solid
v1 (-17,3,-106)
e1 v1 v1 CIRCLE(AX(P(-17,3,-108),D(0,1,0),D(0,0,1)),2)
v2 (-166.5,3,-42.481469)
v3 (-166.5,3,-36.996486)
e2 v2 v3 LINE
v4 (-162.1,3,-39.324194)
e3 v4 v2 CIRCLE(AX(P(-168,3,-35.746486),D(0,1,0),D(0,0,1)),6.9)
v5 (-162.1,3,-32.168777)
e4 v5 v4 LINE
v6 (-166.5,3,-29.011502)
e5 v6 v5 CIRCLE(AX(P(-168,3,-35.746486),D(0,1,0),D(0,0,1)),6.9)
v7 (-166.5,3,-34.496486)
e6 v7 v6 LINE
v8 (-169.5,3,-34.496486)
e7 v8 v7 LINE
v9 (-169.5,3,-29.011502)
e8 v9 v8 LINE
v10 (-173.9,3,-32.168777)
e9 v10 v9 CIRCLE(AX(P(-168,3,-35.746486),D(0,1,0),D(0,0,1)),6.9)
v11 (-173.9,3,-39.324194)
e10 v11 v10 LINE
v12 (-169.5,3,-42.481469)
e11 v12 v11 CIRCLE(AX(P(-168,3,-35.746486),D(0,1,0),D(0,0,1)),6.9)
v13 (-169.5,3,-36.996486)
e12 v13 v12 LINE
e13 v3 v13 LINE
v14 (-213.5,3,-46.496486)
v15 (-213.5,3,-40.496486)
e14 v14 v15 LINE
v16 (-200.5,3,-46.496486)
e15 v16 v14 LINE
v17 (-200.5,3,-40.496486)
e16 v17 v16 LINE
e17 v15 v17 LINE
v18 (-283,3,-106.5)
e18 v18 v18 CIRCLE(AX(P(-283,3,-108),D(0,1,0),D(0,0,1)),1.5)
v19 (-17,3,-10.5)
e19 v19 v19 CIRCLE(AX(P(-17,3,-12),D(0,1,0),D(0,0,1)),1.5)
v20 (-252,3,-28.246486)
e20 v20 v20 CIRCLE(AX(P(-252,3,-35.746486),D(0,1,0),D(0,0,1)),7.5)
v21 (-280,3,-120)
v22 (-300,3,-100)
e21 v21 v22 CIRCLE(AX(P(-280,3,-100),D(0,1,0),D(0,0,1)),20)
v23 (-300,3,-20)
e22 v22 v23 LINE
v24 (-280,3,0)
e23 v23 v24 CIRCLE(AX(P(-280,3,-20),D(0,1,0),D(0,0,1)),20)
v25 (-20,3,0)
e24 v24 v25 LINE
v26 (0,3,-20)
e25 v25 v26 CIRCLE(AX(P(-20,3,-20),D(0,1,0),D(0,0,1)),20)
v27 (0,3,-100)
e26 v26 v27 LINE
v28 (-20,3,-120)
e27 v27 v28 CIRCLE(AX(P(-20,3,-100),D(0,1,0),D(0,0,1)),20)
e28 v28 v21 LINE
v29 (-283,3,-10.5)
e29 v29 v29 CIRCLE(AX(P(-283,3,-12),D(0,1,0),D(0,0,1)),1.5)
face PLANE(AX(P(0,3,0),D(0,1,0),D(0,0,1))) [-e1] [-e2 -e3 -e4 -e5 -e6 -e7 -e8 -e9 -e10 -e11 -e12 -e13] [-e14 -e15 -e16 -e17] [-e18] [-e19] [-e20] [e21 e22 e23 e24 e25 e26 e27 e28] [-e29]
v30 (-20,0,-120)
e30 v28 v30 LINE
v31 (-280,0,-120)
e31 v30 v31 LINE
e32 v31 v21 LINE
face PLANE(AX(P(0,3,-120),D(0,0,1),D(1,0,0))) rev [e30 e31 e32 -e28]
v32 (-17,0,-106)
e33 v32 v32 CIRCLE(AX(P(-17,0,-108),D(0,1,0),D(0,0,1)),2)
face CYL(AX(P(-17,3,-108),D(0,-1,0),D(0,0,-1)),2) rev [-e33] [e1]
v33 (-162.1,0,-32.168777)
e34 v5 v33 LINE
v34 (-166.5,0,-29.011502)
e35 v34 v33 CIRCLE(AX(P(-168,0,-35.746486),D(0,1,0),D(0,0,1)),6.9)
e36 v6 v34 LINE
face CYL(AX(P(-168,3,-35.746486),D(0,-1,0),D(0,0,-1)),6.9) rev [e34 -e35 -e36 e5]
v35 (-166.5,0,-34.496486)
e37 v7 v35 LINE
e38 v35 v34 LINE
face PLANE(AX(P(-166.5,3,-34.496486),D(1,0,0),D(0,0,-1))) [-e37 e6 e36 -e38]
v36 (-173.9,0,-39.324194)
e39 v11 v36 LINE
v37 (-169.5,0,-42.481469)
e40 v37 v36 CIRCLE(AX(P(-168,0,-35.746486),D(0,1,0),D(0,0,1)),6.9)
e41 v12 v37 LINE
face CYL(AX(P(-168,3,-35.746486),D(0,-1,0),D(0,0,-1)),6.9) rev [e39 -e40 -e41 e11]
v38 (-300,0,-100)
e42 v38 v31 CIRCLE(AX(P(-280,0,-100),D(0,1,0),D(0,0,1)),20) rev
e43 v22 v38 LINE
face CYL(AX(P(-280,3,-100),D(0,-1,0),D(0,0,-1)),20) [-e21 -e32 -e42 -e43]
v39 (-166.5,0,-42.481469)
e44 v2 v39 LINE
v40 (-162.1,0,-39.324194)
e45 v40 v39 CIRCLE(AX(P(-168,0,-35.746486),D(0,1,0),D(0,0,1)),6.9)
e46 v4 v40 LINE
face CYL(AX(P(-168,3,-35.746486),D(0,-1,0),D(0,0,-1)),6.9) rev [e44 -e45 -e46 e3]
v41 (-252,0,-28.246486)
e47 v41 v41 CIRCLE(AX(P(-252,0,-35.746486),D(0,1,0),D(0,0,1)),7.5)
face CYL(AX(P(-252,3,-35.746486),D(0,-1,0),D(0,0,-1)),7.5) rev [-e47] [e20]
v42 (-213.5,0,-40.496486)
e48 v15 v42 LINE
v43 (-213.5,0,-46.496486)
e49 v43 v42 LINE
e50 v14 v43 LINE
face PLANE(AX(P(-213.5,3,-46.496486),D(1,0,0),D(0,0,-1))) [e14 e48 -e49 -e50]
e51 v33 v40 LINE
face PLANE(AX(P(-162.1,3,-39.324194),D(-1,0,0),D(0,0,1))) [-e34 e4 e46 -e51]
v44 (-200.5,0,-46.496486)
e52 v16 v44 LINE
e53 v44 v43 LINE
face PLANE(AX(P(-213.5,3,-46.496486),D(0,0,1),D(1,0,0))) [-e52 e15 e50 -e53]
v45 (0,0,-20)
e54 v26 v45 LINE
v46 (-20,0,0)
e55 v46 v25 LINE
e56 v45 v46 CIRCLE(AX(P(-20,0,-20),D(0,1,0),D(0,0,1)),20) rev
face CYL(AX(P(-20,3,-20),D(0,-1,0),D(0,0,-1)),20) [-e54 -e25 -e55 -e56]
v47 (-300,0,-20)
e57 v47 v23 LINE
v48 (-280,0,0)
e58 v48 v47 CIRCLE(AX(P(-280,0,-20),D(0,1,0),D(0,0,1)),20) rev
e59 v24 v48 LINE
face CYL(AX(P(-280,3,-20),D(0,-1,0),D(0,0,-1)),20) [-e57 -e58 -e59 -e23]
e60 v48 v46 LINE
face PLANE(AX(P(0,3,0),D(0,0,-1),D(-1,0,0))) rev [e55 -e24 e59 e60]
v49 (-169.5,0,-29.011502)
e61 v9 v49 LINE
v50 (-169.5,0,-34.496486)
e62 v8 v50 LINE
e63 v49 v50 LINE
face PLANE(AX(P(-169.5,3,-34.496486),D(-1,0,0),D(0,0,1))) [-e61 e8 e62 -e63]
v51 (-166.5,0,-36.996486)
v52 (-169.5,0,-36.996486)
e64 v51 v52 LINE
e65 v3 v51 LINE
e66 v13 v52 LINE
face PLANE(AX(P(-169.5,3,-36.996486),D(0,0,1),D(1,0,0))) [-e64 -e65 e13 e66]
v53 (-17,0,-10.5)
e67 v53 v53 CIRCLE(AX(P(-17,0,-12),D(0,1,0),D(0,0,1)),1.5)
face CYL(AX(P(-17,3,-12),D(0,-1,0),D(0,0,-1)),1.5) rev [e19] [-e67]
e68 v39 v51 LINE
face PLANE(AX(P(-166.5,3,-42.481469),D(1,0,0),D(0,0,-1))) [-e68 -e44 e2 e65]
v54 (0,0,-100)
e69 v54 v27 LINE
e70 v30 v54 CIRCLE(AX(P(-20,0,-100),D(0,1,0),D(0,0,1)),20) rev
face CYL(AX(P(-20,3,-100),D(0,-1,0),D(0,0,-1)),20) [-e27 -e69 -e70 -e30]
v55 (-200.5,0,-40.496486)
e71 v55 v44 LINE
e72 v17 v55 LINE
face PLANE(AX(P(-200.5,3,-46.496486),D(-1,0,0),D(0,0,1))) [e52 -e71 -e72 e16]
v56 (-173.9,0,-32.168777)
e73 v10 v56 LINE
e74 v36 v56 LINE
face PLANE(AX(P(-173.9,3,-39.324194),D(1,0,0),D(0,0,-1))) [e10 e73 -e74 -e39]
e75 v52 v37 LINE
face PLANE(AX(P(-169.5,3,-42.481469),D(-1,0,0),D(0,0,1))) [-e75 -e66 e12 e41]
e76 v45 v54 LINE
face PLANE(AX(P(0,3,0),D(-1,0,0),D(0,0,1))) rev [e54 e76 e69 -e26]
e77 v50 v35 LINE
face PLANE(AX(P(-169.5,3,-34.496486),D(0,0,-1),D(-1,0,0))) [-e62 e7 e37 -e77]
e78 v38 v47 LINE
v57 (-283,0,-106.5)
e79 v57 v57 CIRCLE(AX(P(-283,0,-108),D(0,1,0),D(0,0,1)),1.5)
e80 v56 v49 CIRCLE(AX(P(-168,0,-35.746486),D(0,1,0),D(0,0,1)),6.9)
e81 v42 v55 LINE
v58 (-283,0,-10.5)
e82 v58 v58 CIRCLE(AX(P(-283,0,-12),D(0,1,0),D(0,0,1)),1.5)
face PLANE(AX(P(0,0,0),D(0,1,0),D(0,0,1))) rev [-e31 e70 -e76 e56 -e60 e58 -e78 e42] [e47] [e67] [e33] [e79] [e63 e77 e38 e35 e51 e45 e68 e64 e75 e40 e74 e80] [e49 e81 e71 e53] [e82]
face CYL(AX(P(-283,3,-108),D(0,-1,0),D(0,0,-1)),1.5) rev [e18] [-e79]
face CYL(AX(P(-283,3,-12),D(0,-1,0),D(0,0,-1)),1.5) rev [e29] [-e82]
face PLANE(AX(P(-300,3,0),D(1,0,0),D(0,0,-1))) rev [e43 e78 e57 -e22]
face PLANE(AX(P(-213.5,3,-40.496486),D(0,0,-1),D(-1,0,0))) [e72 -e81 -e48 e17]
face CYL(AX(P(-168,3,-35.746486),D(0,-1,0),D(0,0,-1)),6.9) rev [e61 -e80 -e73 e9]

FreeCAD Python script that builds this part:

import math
import FreeCAD as App
import Part
import Sketcher

V = App.Vector
Q = App.Units.Quantity


def edges_at(feature, points):
    """Names of the edges that pass closest to the given points."""
    edges = feature.Shape.Edges
    near = lambda p: min(range(len(edges)), key=lambda i: edges[i].distToShape(Part.Vertex(*p))[0])
    return sorted({f"Edge{near(p) + 1}" for p in points})

doc = App.newDocument("Part")
params = doc.addObject("Spreadsheet::Sheet", "Params")
for row, (alias, value) in enumerate([
    ("sketch1_diameter", "3 mm"),
    ("sketch1_diameter2", "15 mm"),
    ("sketch1_diameter3", "4 mm"),
    ("sketch1_radius", "6.9 mm"),
    ("sketch1_width", "300 mm"),
    ("pad1_length", "3 mm"),
    ("fillet_radius", "20 mm"),
], start=1):
    params.set(f"A{row}", alias)
    params.set(f"B{row}", "=" + value)
    params.setAlias(f"B{row}", alias)

body = doc.addObject("PartDesign::Body", "Body")

sketch1 = body.newObject("Sketcher::SketchObject", "Sketch")
sketch1.AttachmentSupport = (doc.getObject("XZ_Plane"), [""])
sketch1.MapMode = "FlatFace"
sketch1.addGeometry(Part.LineSegment(V(-300, -120, 0), V(-300, 0, 0)), False)
sketch1.addGeometry(Part.LineSegment(V(-300, 0, 0), V(0, 0, 0)), False)
sketch1.addGeometry(Part.LineSegment(V(0, 0, 0), V(0, -120, 0)), False)
sketch1.addGeometry(Part.LineSegment(V(0, -120, 0), V(-300, -120, 0)), False)
sketch1.addGeometry(Part.Circle(V(-283, -12, 0), V(0, 0, 1), 1.5), False)
sketch1.addGeometry(Part.Circle(V(-252, -35.7, 0), V(0, 0, 1), 7.5), False)
sketch1.addGeometry(Part.LineSegment(V(-200.5, -40.5, 0), V(-213.5, -40.5, 0)), False)
sketch1.addGeometry(Part.LineSegment(V(-213.5, -40.5, 0), V(-213.5, -46.5, 0)), False)
sketch1.addGeometry(Part.LineSegment(V(-213.5, -46.5, 0), V(-200.5, -46.5, 0)), False)
sketch1.addGeometry(Part.LineSegment(V(-200.5, -46.5, 0), V(-200.5, -40.5, 0)), False)
sketch1.addGeometry(Part.LineSegment(V(-173.9, -32.2, 0), V(-173.9, -39.3, 0)), False)
sketch1.addGeometry(Part.ArcOfCircle(Part.Circle(V(-168, -35.7, 0), V(0, 0, 1), 6.9), math.radians(-149), math.radians(-103)), False)
sketch1.addGeometry(Part.LineSegment(V(-169.5, -42.5, 0), V(-169.5, -37, 0)), False)
sketch1.addGeometry(Part.LineSegment(V(-169.5, -37, 0), V(-166.5, -37, 0)), False)
sketch1.addGeometry(Part.LineSegment(V(-166.5, -37, 0), V(-166.5, -42.5, 0)), False)
sketch1.addGeometry(Part.ArcOfCircle(Part.Circle(V(-168, -35.7, 0), V(0, 0, 1), 6.9), math.radians(-77), math.radians(-31)), False)
sketch1.addGeometry(Part.LineSegment(V(-162.1, -39.3, 0), V(-162.1, -32.2, 0)), False)
sketch1.addGeometry(Part.ArcOfCircle(Part.Circle(V(-168, -35.7, 0), V(0, 0, 1), 6.9), math.radians(31), math.radians(77)), False)
sketch1.addGeometry(Part.LineSegment(V(-166.5, -29, 0), V(-166.5, -34.5, 0)), False)
sketch1.addGeometry(Part.LineSegment(V(-166.5, -34.5, 0), V(-169.5, -34.5, 0)), False)
sketch1.addGeometry(Part.LineSegment(V(-169.5, -34.5, 0), V(-169.5, -29, 0)), False)
sketch1.addGeometry(Part.ArcOfCircle(Part.Circle(V(-168, -35.7, 0), V(0, 0, 1), 6.9), math.radians(103), math.radians(149)), False)
sketch1.addGeometry(Part.Circle(V(-17, -12, 0), V(0, 0, 1), 1.5), False)
sketch1.addGeometry(Part.Circle(V(-283, -108, 0), V(0, 0, 1), 1.5), False)
sketch1.addGeometry(Part.Circle(V(-17, -108, 0), V(0, 0, 1), 2), False)
sketch1.addConstraint(Sketcher.Constraint("Coincident", 0, 2, 1, 1))
sketch1.addConstraint(Sketcher.Constraint("Coincident", 1, 2, 2, 1))
sketch1.addConstraint(Sketcher.Constraint("Coincident", 2, 2, 3, 1))
sketch1.addConstraint(Sketcher.Constraint("Coincident", 3, 2, 0, 1))
sketch1.addConstraint(Sketcher.Constraint("Coincident", 6, 2, 7, 1))
sketch1.addConstraint(Sketcher.Constraint("Coincident", 7, 2, 8, 1))
sketch1.addConstraint(Sketcher.Constraint("Coincident", 8, 2, 9, 1))
sketch1.addConstraint(Sketcher.Constraint("Coincident", 9, 2, 6, 1))
sketch1.addConstraint(Sketcher.Constraint("Coincident", 10, 2, 11, 1))
sketch1.addConstraint(Sketcher.Constraint("Coincident", 11, 2, 12, 1))
sketch1.addConstraint(Sketcher.Constraint("Coincident", 12, 2, 13, 1))
sketch1.addConstraint(Sketcher.Constraint("Coincident", 13, 2, 14, 1))
sketch1.addConstraint(Sketcher.Constraint("Coincident", 14, 2, 15, 1))
sketch1.addConstraint(Sketcher.Constraint("Coincident", 15, 2, 16, 1))
sketch1.addConstraint(Sketcher.Constraint("Coincident", 16, 2, 17, 1))
sketch1.addConstraint(Sketcher.Constraint("Coincident", 17, 2, 18, 1))
sketch1.addConstraint(Sketcher.Constraint("Coincident", 18, 2, 19, 1))
sketch1.addConstraint(Sketcher.Constraint("Coincident", 19, 2, 20, 1))
sketch1.addConstraint(Sketcher.Constraint("Coincident", 20, 2, 21, 1))
sketch1.addConstraint(Sketcher.Constraint("Coincident", 21, 2, 10, 1))
sketch1.addConstraint(Sketcher.Constraint("Vertical", 0))
sketch1.addConstraint(Sketcher.Constraint("Horizontal", 1))
sketch1.addConstraint(Sketcher.Constraint("Vertical", 2))
sketch1.addConstraint(Sketcher.Constraint("Horizontal", 3))
sketch1.addConstraint(Sketcher.Constraint("Horizontal", 6))
sketch1.addConstraint(Sketcher.Constraint("Vertical", 7))
sketch1.addConstraint(Sketcher.Constraint("Horizontal", 8))
sketch1.addConstraint(Sketcher.Constraint("Vertical", 9))
sketch1.addConstraint(Sketcher.Constraint("Vertical", 10))
sketch1.addConstraint(Sketcher.Constraint("Vertical", 12))
sketch1.addConstraint(Sketcher.Constraint("Horizontal", 13))
sketch1.addConstraint(Sketcher.Constraint("Vertical", 14))
sketch1.addConstraint(Sketcher.Constraint("Vertical", 16))
sketch1.addConstraint(Sketcher.Constraint("Vertical", 18))
sketch1.addConstraint(Sketcher.Constraint("Horizontal", 19))
sketch1.addConstraint(Sketcher.Constraint("Vertical", 20))
sketch1.addConstraint(Sketcher.Constraint("Coincident", 1, 2, -1, 1))
sketch1.addConstraint(Sketcher.Constraint("Coincident", 15, 3, 11, 3))
sketch1.addConstraint(Sketcher.Constraint("Coincident", 17, 3, 11, 3))
sketch1.addConstraint(Sketcher.Constraint("Coincident", 21, 3, 11, 3))
sketch1.addConstraint(Sketcher.Constraint("Equal", 11, 15))
sketch1.addConstraint(Sketcher.Constraint("Equal", 15, 17))
sketch1.addConstraint(Sketcher.Constraint("Equal", 17, 21))
sketch1.addConstraint(Sketcher.Constraint("Equal", 4, 22))
sketch1.addConstraint(Sketcher.Constraint("Equal", 22, 23))
sketch1.addConstraint(Sketcher.Constraint("Horizontal", 5, 3, 11, 3))
sketch1.addConstraint(Sketcher.Constraint("Horizontal", 4, 3, 22, 3))
sketch1.addConstraint(Sketcher.Constraint("Horizontal", 23, 3, 24, 3))
sketch1.addConstraint(Sketcher.Constraint("Horizontal", 11, 2, 14, 2))
sketch1.addConstraint(Sketcher.Constraint("Horizontal", 10, 2, 15, 2))
sketch1.addConstraint(Sketcher.Constraint("Horizontal", 17, 2, 20, 2))
sketch1.addConstraint(Sketcher.Constraint("Vertical", 4, 3, 23, 3))
sketch1.addConstraint(Sketcher.Constraint("Vertical", 22, 3, 24, 3))
sketch1.addConstraint(Sketcher.Constraint("Vertical", 14, 2, 17, 2))
sketch1.addConstraint(Sketcher.Constraint("Equal", 14, 18))
sketch1.addConstraint(Sketcher.Constraint("Diameter", 4, Q("3 mm")))
sketch1.addConstraint(Sketcher.Constraint("Diameter", 5, Q("15 mm")))
sketch1.addConstraint(Sketcher.Constraint("Diameter", 24, Q("4 mm")))
sketch1.addConstraint(Sketcher.Constraint("Radius", 11, Q("6.9 mm")))
sketch1.addConstraint(Sketcher.Constraint("DistanceX", 1, 1, 1, 2, Q("300 mm")))
sketch1.addConstraint(Sketcher.Constraint("DistanceX", 6, 2, 6, 1, Q("13 mm")))
sketch1.addConstraint(Sketcher.Constraint("DistanceX", 13, 1, 13, 2, Q("3 mm")))
sketch1.addConstraint(Sketcher.Constraint("DistanceY", 0, 1, 0, 2, Q("120 mm")))
sketch1.addConstraint(Sketcher.Constraint("DistanceY", 7, 2, 7, 1, Q("6 mm")))
sketch1.addConstraint(Sketcher.Constraint("DistanceX", 4, 3, -1, 1, Q("283 mm")))
sketch1.addConstraint(Sketcher.Constraint("DistanceY", 4, 3, -1, 1, Q("12 mm")))
sketch1.addConstraint(Sketcher.Constraint("DistanceX", 5, 3, -1, 1, Q("252 mm")))
sketch1.addConstraint(Sketcher.Constraint("DistanceX", 11, 3, -1, 1, Q("168 mm")))
sketch1.addConstraint(Sketcher.Constraint("DistanceX", 22, 3, -1, 1, Q("17 mm")))
sketch1.addConstraint(Sketcher.Constraint("DistanceY", 23, 3, -1, 1, Q("108 mm")))
sketch1.addConstraint(Sketcher.Constraint("DistanceX", 6, 2, -1, 1, Q("213.5 mm")))
sketch1.addConstraint(Sketcher.Constraint("DistanceX", 10, 2, -1, 1, Q("173.9 mm")))
sketch1.addConstraint(Sketcher.Constraint("DistanceY", 13, 2, 18, 2, Q("2.5 mm")))
sketch1.addConstraint(Sketcher.Constraint("DistanceY", 6, 2, 5, 3, Q("4.75 mm")))
sketch1.addConstraint(Sketcher.Constraint("DistanceY", 11, 2, -1, 1, Q("42.481469 mm")))
sketch1.setExpression("Constraints[55]", "Params.sketch1_diameter")
sketch1.setExpression("Constraints[56]", "Params.sketch1_diameter2")
sketch1.setExpression("Constraints[57]", "Params.sketch1_diameter3")
sketch1.setExpression("Constraints[58]", "Params.sketch1_radius")
sketch1.setExpression("Constraints[59]", "Params.sketch1_width")
pad1 = body.newObject("PartDesign::Pad", "Pad")
pad1.Profile = sketch1
pad1.setExpression("Length", "Params.pad1_length")
pad1.Reversed = True
doc.recompute()

fillet = body.newObject("PartDesign::Fillet", "Fillet")
fillet.Base = (pad1, edges_at(pad1, [
    (0, 1.5, 0),
    (-300, 1.5, 0),
    (-300, 1.5, -120),
    (0, 1.5, -120),
]))
fillet.setExpression("Radius", "Params.fillet_radius")

doc.recompute()
